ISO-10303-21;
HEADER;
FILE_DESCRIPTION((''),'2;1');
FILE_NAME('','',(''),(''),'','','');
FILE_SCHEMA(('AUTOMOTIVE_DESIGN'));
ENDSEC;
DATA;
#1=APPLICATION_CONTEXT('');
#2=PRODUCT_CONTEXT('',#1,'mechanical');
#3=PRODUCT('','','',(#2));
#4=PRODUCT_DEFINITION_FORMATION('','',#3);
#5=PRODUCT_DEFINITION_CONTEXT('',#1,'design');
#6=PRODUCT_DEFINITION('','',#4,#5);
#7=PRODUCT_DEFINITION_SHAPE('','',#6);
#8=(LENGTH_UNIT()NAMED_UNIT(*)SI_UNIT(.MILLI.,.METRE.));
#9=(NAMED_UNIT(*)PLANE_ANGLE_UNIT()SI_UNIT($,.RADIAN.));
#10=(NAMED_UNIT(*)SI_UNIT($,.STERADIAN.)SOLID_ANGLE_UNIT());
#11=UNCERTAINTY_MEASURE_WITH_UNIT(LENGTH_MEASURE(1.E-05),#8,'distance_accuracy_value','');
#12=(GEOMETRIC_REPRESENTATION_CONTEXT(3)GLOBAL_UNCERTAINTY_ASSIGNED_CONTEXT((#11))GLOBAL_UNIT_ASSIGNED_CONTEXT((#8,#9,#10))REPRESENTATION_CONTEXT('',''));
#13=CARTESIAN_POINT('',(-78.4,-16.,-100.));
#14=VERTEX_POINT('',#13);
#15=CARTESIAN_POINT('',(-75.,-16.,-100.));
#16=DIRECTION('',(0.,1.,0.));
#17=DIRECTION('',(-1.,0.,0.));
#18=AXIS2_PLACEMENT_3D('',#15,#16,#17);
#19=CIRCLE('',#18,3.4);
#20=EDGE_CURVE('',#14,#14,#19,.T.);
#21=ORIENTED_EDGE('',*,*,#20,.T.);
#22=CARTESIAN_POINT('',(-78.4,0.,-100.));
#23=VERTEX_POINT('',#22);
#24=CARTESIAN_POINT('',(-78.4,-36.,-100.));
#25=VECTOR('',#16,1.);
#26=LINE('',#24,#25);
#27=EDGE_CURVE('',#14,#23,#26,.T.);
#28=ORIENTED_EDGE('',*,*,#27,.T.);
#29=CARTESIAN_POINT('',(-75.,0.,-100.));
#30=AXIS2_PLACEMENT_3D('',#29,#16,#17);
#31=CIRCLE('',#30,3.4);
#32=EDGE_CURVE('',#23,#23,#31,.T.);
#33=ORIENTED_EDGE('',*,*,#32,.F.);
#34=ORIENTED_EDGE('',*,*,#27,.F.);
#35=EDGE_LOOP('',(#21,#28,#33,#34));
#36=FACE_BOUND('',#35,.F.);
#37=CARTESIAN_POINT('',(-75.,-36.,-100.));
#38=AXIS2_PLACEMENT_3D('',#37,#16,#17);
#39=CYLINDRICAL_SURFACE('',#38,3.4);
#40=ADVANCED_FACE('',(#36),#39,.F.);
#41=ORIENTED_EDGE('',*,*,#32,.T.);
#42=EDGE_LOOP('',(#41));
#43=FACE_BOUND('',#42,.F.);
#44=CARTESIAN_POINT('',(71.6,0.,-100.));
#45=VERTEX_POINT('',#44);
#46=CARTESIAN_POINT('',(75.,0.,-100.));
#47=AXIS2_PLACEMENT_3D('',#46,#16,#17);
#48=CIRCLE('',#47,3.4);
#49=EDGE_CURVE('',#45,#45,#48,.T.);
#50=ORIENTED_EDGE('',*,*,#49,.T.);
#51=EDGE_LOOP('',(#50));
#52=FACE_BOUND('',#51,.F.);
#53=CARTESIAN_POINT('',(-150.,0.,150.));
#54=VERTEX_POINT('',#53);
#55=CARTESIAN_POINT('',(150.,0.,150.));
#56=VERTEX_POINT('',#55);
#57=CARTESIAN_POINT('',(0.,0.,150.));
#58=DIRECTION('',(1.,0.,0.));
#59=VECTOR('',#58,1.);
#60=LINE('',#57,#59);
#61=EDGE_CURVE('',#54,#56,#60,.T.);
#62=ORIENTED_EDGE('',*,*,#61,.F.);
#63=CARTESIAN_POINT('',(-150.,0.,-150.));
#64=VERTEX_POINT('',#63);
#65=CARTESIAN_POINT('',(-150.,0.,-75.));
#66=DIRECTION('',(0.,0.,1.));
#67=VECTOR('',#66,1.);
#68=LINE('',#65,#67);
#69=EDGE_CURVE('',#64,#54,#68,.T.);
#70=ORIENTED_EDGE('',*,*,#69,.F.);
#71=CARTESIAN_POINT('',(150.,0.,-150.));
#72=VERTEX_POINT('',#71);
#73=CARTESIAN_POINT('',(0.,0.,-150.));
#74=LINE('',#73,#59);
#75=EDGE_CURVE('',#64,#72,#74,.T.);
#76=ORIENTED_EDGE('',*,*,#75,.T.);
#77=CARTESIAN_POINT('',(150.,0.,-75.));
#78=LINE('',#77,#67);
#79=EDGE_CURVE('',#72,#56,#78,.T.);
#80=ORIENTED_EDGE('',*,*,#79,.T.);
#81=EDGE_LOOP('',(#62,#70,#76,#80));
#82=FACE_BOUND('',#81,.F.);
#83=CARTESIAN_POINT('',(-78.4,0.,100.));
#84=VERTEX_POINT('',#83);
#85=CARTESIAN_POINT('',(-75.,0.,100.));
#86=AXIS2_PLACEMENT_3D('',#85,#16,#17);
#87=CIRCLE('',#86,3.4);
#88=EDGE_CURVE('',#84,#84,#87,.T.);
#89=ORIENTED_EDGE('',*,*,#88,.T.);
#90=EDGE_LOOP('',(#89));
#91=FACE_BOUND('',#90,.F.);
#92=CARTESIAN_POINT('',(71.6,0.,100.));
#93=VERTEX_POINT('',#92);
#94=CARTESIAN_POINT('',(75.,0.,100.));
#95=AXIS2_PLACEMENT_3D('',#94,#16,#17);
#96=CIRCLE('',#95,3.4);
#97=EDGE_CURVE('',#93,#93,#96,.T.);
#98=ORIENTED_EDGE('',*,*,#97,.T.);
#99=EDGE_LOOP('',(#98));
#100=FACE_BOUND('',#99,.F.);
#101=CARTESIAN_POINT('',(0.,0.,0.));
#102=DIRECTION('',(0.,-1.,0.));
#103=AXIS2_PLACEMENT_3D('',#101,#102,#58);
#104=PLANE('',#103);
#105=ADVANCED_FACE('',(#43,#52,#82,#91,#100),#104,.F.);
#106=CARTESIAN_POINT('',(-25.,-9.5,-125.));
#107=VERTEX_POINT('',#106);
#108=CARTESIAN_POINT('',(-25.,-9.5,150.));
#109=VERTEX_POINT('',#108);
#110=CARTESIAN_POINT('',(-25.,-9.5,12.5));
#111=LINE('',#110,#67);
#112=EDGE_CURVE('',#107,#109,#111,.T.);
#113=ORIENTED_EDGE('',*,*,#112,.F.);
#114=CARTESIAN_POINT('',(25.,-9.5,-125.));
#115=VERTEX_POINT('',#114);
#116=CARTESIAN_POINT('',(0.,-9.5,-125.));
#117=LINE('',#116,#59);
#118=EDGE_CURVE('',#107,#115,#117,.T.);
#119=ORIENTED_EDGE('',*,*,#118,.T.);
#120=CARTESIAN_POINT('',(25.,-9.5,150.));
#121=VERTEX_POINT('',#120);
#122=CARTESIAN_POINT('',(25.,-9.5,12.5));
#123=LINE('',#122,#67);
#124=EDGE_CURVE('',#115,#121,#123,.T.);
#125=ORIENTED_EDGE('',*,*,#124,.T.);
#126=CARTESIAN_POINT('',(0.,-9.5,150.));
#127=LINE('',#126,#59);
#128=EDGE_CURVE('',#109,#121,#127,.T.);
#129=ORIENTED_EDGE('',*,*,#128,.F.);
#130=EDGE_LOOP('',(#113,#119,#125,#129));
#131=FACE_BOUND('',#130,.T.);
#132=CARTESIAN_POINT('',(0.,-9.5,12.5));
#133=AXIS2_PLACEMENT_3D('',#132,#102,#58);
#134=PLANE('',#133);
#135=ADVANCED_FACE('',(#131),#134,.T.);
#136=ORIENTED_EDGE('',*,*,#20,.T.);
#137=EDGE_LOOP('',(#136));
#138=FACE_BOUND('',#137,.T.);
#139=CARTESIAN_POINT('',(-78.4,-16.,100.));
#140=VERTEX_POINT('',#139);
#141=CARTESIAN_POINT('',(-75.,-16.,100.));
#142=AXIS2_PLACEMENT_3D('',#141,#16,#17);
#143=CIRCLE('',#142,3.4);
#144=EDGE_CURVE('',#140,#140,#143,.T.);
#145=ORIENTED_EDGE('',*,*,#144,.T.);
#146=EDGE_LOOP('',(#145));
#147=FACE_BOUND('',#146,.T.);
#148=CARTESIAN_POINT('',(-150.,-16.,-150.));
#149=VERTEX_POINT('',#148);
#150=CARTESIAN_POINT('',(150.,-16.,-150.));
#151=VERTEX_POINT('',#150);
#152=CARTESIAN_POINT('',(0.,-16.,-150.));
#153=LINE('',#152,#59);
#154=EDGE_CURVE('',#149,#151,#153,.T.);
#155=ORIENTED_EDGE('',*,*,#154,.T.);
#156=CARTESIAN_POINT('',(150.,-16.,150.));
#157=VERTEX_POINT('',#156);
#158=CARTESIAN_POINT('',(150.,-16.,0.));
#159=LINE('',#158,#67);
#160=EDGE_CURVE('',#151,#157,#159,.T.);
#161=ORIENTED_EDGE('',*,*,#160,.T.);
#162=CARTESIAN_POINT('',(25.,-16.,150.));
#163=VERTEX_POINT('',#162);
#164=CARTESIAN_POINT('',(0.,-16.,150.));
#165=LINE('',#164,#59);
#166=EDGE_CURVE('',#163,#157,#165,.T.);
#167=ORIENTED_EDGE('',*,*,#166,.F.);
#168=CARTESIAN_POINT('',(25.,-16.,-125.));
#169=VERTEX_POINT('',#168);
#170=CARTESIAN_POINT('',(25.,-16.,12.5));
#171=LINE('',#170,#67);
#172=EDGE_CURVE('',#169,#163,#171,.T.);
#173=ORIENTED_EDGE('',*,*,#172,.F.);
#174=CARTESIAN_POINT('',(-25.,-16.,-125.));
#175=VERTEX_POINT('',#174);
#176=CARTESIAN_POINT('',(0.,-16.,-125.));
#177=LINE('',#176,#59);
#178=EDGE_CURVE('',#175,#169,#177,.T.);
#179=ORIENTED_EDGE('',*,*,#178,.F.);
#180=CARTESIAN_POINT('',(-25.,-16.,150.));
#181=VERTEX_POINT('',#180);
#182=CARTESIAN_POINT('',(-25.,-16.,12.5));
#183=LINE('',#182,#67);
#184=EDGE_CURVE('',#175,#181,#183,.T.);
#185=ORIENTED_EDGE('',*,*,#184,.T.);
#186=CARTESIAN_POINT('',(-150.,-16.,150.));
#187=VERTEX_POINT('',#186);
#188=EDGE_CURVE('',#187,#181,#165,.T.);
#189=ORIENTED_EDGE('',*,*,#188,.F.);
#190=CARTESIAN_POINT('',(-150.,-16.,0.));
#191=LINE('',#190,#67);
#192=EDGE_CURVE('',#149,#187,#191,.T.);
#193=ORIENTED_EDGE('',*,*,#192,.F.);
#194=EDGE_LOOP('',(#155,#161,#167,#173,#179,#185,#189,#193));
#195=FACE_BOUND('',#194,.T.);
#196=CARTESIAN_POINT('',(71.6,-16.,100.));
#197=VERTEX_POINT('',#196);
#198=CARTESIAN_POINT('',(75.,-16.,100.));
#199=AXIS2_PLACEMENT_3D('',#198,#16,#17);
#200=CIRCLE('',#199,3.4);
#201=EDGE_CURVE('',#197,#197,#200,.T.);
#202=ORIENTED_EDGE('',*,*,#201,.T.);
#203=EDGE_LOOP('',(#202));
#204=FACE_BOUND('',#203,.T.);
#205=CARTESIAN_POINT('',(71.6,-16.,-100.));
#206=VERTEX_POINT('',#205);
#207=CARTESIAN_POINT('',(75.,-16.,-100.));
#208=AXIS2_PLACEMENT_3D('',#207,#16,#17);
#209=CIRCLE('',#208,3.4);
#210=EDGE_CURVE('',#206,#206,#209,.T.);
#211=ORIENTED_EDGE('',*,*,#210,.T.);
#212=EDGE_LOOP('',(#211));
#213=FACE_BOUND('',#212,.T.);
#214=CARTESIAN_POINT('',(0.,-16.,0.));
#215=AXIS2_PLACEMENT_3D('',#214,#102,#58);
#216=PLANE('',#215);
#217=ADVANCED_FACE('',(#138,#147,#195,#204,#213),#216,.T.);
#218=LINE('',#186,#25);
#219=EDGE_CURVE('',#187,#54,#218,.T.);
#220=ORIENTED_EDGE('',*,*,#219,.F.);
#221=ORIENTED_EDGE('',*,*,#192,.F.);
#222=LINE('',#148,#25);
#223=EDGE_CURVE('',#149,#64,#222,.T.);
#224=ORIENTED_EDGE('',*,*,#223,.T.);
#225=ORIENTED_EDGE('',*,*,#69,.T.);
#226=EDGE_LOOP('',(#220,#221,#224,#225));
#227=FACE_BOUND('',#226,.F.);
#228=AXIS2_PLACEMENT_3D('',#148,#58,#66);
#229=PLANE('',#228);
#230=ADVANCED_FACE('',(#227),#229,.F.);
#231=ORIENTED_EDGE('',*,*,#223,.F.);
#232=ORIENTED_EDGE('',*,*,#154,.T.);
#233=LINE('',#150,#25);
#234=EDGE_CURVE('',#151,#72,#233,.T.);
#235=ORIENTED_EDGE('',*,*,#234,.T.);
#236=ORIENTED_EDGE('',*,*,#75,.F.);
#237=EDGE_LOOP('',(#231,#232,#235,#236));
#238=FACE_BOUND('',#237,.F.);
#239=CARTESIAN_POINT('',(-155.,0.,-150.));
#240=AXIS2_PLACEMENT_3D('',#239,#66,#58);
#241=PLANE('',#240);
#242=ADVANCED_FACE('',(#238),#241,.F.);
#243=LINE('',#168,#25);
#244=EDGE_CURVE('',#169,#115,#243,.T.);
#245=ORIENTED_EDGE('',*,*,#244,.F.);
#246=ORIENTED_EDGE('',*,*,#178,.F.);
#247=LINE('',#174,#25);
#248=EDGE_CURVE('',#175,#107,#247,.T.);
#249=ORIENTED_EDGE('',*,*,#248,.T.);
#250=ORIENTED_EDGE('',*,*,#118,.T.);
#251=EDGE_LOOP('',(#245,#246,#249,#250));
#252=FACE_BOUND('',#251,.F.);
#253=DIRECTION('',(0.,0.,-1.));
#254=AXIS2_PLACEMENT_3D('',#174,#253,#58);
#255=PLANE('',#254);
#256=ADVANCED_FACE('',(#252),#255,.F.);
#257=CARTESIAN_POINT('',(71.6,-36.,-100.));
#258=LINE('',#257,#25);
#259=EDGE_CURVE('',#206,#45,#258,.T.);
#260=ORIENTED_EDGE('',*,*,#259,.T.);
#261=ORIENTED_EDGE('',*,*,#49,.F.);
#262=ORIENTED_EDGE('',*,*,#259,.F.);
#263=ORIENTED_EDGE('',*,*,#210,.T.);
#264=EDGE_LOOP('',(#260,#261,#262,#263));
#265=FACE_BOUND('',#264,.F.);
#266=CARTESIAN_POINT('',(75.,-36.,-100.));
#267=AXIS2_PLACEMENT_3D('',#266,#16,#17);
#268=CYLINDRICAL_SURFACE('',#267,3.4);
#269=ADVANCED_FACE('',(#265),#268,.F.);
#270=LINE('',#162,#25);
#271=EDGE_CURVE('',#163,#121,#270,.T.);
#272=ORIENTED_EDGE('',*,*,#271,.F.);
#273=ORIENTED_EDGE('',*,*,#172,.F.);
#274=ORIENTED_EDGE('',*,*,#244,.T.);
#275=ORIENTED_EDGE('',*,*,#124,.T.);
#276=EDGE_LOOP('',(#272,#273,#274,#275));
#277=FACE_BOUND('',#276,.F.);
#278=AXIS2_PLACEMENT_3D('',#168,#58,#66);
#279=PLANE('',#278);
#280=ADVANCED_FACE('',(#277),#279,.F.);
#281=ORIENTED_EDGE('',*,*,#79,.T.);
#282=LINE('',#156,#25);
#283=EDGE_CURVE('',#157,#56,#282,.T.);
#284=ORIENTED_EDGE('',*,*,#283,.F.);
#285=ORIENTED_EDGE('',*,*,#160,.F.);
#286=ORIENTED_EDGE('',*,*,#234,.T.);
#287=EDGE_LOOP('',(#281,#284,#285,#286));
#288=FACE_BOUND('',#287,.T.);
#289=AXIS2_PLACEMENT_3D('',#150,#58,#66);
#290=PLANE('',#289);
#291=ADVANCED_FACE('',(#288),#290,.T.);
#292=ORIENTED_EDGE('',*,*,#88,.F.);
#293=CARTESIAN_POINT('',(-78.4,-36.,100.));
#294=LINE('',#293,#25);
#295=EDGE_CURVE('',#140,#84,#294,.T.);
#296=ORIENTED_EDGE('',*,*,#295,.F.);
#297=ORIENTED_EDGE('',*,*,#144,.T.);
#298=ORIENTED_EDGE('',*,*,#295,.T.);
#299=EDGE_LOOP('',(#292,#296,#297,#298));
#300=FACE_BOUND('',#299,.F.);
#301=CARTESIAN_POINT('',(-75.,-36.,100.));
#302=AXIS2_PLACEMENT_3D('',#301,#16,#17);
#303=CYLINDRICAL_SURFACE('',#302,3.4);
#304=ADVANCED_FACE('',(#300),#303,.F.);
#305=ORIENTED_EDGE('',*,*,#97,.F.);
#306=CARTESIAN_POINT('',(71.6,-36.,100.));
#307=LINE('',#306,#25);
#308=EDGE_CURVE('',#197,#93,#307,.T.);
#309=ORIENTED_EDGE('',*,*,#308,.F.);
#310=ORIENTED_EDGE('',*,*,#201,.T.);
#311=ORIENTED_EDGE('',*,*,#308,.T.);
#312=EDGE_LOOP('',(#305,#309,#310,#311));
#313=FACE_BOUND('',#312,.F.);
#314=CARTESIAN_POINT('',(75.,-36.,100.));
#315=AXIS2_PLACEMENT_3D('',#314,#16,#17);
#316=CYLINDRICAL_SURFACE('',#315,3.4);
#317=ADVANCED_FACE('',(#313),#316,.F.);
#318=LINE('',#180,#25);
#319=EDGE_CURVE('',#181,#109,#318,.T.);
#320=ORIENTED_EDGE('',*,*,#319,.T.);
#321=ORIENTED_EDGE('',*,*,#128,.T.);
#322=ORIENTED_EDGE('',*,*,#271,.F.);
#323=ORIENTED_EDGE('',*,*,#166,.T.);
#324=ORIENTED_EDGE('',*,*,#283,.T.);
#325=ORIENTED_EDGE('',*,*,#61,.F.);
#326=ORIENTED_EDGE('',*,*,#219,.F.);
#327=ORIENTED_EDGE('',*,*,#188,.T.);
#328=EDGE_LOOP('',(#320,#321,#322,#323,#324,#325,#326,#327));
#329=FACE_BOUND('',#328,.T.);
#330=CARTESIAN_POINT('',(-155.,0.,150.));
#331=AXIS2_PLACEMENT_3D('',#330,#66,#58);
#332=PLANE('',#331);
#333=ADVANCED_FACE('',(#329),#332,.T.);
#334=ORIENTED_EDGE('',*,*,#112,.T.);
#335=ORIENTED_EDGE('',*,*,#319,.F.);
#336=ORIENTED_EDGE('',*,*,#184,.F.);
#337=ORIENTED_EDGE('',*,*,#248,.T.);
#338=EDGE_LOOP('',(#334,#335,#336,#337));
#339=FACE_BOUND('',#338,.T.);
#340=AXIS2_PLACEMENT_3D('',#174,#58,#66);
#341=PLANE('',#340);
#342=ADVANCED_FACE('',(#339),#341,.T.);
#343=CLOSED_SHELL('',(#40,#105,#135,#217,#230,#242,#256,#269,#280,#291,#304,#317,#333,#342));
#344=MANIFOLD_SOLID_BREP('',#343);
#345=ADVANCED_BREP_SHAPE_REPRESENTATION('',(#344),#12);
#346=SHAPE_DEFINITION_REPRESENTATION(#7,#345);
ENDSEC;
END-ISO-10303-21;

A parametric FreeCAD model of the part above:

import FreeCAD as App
import Part
import Sketcher
Q = App.Units.Quantity

doc = App.newDocument("Part")
body = doc.addObject("PartDesign::Body", "Body")

sketch1 = body.newObject("Sketcher::SketchObject", "Sketch")
sketch1.AttachmentSupport = (doc.getObject("XZ_Plane"), [""])
sketch1.MapMode = "FlatFace"
sketch1.addGeometry([
    Part.LineSegment(App.Vector(-155, 150, 0), App.Vector(-155, -150, 0)),
    Part.LineSegment(App.Vector(-155, -150, 0), App.Vector(155, -150, 0)),
    Part.LineSegment(App.Vector(155, -150, 0), App.Vector(155, 150, 0)),
    Part.LineSegment(App.Vector(155, 150, 0), App.Vector(-155, 150, 0)),
], False)
sketch1.addConstraint([
    Sketcher.Constraint("Coincident", 0, 2, 1, 1),
    Sketcher.Constraint("Coincident", 1, 2, 2, 1),
    Sketcher.Constraint("Coincident", 2, 2, 3, 1),
    Sketcher.Constraint("Coincident", 3, 2, 0, 1),
    Sketcher.Constraint("Vertical", 0),
    Sketcher.Constraint("Horizontal", 1),
    Sketcher.Constraint("Vertical", 2),
    Sketcher.Constraint("Horizontal", 3),
    Sketcher.Constraint("Symmetric", 0, 2, 2, 2, -1, 1),
    Sketcher.Constraint("DistanceX", 1, 1, 1, 2, Q("310 mm")),
    Sketcher.Constraint("DistanceY", 0, 2, 0, 1, Q("300 mm")),
])
pad1 = body.newObject("PartDesign::Pad", "Pad")
pad1.Profile = sketch1
pad1.Length = 16

sketch2 = body.newObject("Sketcher::SketchObject", "Sketch001")
sketch2.AttachmentSupport = (doc.getObject("XZ_Plane"), [""])
sketch2.MapMode = "FlatFace"
sketch2.AttachmentOffset = App.Placement(App.Vector(0, 0, 16), App.Rotation())
sketch2.addGeometry([
    Part.LineSegment(App.Vector(150, 150, 0), App.Vector(150, -150, 0)),
    Part.LineSegment(App.Vector(150, -150, 0), App.Vector(155, -150, 0)),
    Part.LineSegment(App.Vector(155, -150, 0), App.Vector(155, 150, 0)),
    Part.LineSegment(App.Vector(155, 150, 0), App.Vector(150, 150, 0)),
    Part.LineSegment(App.Vector(-155, 150, 0), App.Vector(-155, -150, 0)),
    Part.LineSegment(App.Vector(-155, -150, 0), App.Vector(-150, -150, 0)),
    Part.LineSegment(App.Vector(-150, -150, 0), App.Vector(-150, 150, 0)),
    Part.LineSegment(App.Vector(-150, 150, 0), App.Vector(-155, 150, 0)),
], False)
sketch2.addConstraint([
    Sketcher.Constraint("Coincident", 0, 2, 1, 1),
    Sketcher.Constraint("Coincident", 1, 2, 2, 1),
    Sketcher.Constraint("Coincident", 2, 2, 3, 1),
    Sketcher.Constraint("Coincident", 3, 2, 0, 1),
    Sketcher.Constraint("Coincident", 4, 2, 5, 1),
    Sketcher.Constraint("Coincident", 5, 2, 6, 1),
    Sketcher.Constraint("Coincident", 6, 2, 7, 1),
    Sketcher.Constraint("Coincident", 7, 2, 4, 1),
    Sketcher.Constraint("Vertical", 0),
    Sketcher.Constraint("Horizontal", 1),
    Sketcher.Constraint("Vertical", 2),
    Sketcher.Constraint("Horizontal", 3),
    Sketcher.Constraint("Vertical", 4),
    Sketcher.Constraint("Horizontal", 5),
    Sketcher.Constraint("Vertical", 6),
    Sketcher.Constraint("Horizontal", 7),
    Sketcher.Constraint("Symmetric", 2, 2, 4, 2, -1, 1),
    Sketcher.Constraint("Symmetric", 0, 2, 6, 2, -1, 1),
    Sketcher.Constraint("Horizontal", 1, 2, 4, 2),
    Sketcher.Constraint("DistanceX", 1, 1, 1, 2, Q("5 mm")),
    Sketcher.Constraint("DistanceY", 0, 2, 0, 1, Q("300 mm")),
    Sketcher.Constraint("DistanceX", -1, 1, 0, 2, Q("150 mm")),
])
pocket1 = body.newObject("PartDesign::Pocket", "Pocket")
pocket1.Profile = sketch2
pocket1.Type = "ThroughAll"

sketch3 = body.newObject("Sketcher::SketchObject", "Sketch002")
sketch3.AttachmentSupport = (doc.getObject("XZ_Plane"), [""])
sketch3.MapMode = "FlatFace"
sketch3.AttachmentOffset = App.Placement(App.Vector(0, 0, 16), App.Rotation())
sketch3.addGeometry([
    Part.LineSegment(App.Vector(-25, 150, 0), App.Vector(-25, -125, 0)),
    Part.LineSegment(App.Vector(-25, -125, 0), App.Vector(25, -125, 0)),
    Part.LineSegment(App.Vector(25, -125, 0), App.Vector(25, 150, 0)),
    Part.LineSegment(App.Vector(25, 150, 0), App.Vector(-25, 150, 0)),
], False)
sketch3.addConstraint([
    Sketcher.Constraint("Coincident", 0, 2, 1, 1),
    Sketcher.Constraint("Coincident", 1, 2, 2, 1),
    Sketcher.Constraint("Coincident", 2, 2, 3, 1),
    Sketcher.Constraint("Coincident", 3, 2, 0, 1),
    Sketcher.Constraint("Vertical", 0),
    Sketcher.Constraint("Horizontal", 1),
    Sketcher.Constraint("Vertical", 2),
    Sketcher.Constraint("Horizontal", 3),
    Sketcher.Constraint("DistanceX", 1, 1, 1, 2, Q("50 mm")),
    Sketcher.Constraint("DistanceY", 0, 2, 0, 1, Q("275 mm")),
    Sketcher.Constraint("DistanceX", 0, 2, -1, 1, Q("25 mm")),
    Sketcher.Constraint("DistanceY", 0, 2, -1, 1, Q("125 mm")),
])
pocket2 = body.newObject("PartDesign::Pocket", "Pocket001")
pocket2.Profile = sketch3
pocket2.Length = 6.5

sketch4 = body.newObject("Sketcher::SketchObject", "Sketch003")
sketch4.AttachmentSupport = (doc.getObject("XZ_Plane"), [""])
sketch4.MapMode = "FlatFace"
sketch4.AttachmentOffset = App.Placement(App.Vector(0, 0, 16), App.Rotation())
sketch4.addGeometry([
    Part.Circle(App.Vector(-75, 100, 0), App.Vector(0, 0, 1), 3.4),
    Part.Circle(App.Vector(75, 100, 0), App.Vector(0, 0, 1), 3.4),
    Part.Circle(App.Vector(75, -100, 0), App.Vector(0, 0, 1), 3.4),
    Part.Circle(App.Vector(-75, -100, 0), App.Vector(0, 0, 1), 3.4),
], False)
sketch4.addConstraint([
    Sketcher.Constraint("Equal", 0, 1),
    Sketcher.Constraint("Equal", 1, 2),
    Sketcher.Constraint("Equal", 2, 3),
    Sketcher.Constraint("Symmetric", 0, 3, 2, 3, -1, 1),
    Sketcher.Constraint("Symmetric", 1, 3, 3, 3, -1, 1),
    Sketcher.Constraint("Symmetric", 0, 3, 1, 3, -2),
    Sketcher.Constraint("Diameter", 0, Q("6.8 mm")),
    Sketcher.Constraint("DistanceX", 0, 3, -1, 1, Q("75 mm")),
    Sketcher.Constraint("DistanceY", -1, 1, 0, 3, Q("100 mm")),
])
doc.recompute()
hole = body.newObject("PartDesign::Hole", "Hole")
hole.Profile = sketch4
hole.ThreadType = "None"
hole.Diameter = 6.8
hole.DepthType = "Dimension"
hole.Depth = 20
hole.DrillPoint = "Angled"
hole.DrillPointAngle = 118

doc.recompute()
